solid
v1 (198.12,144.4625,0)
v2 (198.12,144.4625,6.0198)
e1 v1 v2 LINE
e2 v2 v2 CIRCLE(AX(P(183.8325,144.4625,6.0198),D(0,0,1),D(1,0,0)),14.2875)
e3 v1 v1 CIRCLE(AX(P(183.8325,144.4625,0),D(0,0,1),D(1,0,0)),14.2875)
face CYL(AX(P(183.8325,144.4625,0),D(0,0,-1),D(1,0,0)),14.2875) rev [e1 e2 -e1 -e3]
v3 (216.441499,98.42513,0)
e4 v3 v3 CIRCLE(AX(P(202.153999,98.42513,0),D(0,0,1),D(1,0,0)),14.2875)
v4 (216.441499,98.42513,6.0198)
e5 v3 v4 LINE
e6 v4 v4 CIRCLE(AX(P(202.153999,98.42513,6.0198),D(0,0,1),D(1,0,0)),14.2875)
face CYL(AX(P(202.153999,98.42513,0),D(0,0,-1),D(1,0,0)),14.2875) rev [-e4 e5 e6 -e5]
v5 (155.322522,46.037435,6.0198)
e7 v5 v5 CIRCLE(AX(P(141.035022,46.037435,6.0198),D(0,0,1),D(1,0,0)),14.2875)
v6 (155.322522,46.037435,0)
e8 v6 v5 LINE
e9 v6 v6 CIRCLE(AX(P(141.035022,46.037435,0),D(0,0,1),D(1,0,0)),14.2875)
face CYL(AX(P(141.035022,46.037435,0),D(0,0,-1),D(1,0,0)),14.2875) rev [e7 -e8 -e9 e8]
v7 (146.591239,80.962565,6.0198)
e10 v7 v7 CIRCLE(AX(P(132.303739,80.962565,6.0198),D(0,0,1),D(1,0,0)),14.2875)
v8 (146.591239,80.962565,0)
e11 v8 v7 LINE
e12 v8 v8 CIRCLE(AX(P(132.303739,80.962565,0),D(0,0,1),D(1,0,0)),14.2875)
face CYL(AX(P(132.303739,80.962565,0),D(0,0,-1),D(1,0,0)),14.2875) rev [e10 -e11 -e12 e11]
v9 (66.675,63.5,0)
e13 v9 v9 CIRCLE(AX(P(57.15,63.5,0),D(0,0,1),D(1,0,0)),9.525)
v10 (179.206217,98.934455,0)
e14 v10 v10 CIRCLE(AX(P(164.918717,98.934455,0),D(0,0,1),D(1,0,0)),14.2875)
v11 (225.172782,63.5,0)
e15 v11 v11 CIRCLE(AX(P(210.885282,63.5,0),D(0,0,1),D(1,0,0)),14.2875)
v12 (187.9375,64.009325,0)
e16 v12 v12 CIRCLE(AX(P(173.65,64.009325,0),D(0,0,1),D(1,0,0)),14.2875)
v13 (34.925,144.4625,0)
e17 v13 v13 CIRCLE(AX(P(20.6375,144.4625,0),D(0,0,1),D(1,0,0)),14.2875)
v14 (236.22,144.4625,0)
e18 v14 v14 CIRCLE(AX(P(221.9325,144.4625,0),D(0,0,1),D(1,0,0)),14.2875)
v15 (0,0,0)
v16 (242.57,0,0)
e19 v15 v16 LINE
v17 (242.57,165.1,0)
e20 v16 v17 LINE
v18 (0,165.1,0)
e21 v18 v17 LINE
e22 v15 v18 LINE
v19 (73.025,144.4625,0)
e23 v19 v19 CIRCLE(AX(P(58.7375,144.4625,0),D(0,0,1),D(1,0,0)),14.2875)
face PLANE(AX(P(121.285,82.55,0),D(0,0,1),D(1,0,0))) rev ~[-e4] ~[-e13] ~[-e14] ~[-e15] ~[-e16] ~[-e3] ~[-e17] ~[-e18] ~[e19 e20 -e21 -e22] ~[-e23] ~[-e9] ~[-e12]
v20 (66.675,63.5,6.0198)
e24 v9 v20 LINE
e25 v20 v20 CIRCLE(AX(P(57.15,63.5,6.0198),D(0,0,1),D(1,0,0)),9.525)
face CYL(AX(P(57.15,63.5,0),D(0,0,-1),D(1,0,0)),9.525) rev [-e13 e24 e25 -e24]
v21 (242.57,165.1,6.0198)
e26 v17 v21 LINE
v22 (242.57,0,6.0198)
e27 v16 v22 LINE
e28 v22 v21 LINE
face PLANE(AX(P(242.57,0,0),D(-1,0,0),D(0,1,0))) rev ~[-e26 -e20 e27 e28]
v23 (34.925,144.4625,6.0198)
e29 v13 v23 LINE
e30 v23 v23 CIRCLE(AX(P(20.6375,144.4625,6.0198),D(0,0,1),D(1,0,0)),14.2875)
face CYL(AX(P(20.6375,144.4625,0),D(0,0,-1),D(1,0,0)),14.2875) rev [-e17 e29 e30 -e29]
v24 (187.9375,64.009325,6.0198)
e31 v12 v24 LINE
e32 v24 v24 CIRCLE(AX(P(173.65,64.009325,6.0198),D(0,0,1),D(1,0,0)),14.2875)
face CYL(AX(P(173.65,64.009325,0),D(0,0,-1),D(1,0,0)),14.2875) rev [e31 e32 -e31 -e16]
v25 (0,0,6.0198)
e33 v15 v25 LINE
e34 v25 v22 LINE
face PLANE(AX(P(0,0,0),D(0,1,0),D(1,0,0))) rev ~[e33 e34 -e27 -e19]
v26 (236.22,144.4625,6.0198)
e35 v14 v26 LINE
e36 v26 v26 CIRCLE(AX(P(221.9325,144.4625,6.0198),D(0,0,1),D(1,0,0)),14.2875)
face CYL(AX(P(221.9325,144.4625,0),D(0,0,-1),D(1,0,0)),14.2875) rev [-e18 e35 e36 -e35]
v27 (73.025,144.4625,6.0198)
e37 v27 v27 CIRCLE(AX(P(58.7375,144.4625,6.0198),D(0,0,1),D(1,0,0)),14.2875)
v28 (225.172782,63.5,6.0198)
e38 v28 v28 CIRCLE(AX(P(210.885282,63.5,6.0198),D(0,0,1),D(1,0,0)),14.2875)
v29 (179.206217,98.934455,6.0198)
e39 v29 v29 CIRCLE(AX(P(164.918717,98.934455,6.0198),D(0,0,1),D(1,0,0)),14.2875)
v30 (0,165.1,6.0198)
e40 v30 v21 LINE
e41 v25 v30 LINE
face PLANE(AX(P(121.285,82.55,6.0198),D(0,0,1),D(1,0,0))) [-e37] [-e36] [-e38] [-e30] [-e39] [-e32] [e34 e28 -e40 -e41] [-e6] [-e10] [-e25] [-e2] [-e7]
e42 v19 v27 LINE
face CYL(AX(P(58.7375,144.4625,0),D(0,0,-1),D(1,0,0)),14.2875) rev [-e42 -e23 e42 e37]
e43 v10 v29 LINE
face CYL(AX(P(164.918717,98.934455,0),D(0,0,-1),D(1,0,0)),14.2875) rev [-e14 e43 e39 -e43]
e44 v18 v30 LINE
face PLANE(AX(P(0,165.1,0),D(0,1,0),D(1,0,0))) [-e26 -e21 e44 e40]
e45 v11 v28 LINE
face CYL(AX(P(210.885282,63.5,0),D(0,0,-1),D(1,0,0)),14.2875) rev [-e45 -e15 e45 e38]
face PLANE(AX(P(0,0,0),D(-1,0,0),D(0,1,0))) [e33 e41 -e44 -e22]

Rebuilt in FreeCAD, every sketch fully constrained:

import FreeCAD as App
import Part
import Sketcher
Q = App.Units.Quantity


def add_polygon(sketch, points):
    """Adds a closed chain of lines whose ends are joined by coincident constraints."""
    first, n = sketch.GeometryCount, len(points)
    for a, b in zip(points, points[1:] + points[:1]):
        sketch.addGeometry(Part.LineSegment(App.Vector(*a, 0), App.Vector(*b, 0)), False)
    for i in range(n):
        sketch.addConstraint(Sketcher.Constraint("Coincident", first + i, 2, first + (i + 1) % n, 1))

doc = App.newDocument("Part")
body = doc.addObject("PartDesign::Body", "Body")

# Sketch on XY plane
sketch1 = doc.addObject("Sketcher::SketchObject", "Sketch")
body.addObject(sketch1)
sketch1.AttachmentSupport = (doc.XY_Plane, [""])
sketch1.MapMode = "FlatFace"
add_polygon(sketch1, [(0, 165), (0, 0), (243, 0), (243, 165)])  # lines 0-3
sketch1.addGeometry(Part.Circle(App.Vector(57, 64, 0), App.Vector(0, 0, 1), 10), False)  # 4
sketch1.addGeometry(Part.Circle(App.Vector(141, 46, 0), App.Vector(0, 0, 1), 14), False)  # 5
sketch1.addGeometry(Part.Circle(App.Vector(174, 64, 0), App.Vector(0, 0, 1), 14), False)  # 6
sketch1.addGeometry(Part.Circle(App.Vector(132, 81, 0), App.Vector(0, 0, 1), 14), False)  # 7
sketch1.addGeometry(Part.Circle(App.Vector(211, 64, 0), App.Vector(0, 0, 1), 14), False)  # 8
sketch1.addGeometry(Part.Circle(App.Vector(21, 144, 0), App.Vector(0, 0, 1), 14), False)  # 9
sketch1.addGeometry(Part.Circle(App.Vector(59, 144, 0), App.Vector(0, 0, 1), 14), False)  # 10
sketch1.addGeometry(Part.Circle(App.Vector(165, 99, 0), App.Vector(0, 0, 1), 14), False)  # 11
sketch1.addGeometry(Part.Circle(App.Vector(202, 98, 0), App.Vector(0, 0, 1), 14), False)  # 12
sketch1.addGeometry(Part.Circle(App.Vector(184, 144, 0), App.Vector(0, 0, 1), 14), False)  # 13
sketch1.addGeometry(Part.Circle(App.Vector(222, 144, 0), App.Vector(0, 0, 1), 14), False)  # 14
sketch1.addConstraint(Sketcher.Constraint("Vertical", 0))
sketch1.addConstraint(Sketcher.Constraint("Horizontal", 1))
sketch1.addConstraint(Sketcher.Constraint("Vertical", 2))
sketch1.addConstraint(Sketcher.Constraint("Horizontal", 3))
sketch1.addConstraint(Sketcher.Constraint("Coincident", 0, 2, -1, 1))
sketch1.addConstraint(Sketcher.Constraint("Equal", 5, 6))
sketch1.addConstraint(Sketcher.Constraint("Equal", 6, 7))
sketch1.addConstraint(Sketcher.Constraint("Equal", 7, 8))
sketch1.addConstraint(Sketcher.Constraint("Equal", 8, 9))
sketch1.addConstraint(Sketcher.Constraint("Equal", 9, 10))
sketch1.addConstraint(Sketcher.Constraint("Equal", 10, 11))
sketch1.addConstraint(Sketcher.Constraint("Equal", 11, 12))
sketch1.addConstraint(Sketcher.Constraint("Equal", 12, 13))
sketch1.addConstraint(Sketcher.Constraint("Equal", 13, 14))
sketch1.addConstraint(Sketcher.Constraint("Horizontal", 4, 3, 8, 3))
sketch1.addConstraint(Sketcher.Constraint("Horizontal", 9, 3, 10, 3))
sketch1.addConstraint(Sketcher.Constraint("Horizontal", 10, 3, 13, 3))
sketch1.addConstraint(Sketcher.Constraint("Horizontal", 13, 3, 14, 3))
sketch1.addConstraint(Sketcher.Constraint("Diameter", 4, Q("0.75 in")))
sketch1.addConstraint(Sketcher.Constraint("Diameter", 5, Q("1.125 in")))
sketch1.addConstraint(Sketcher.Constraint("DistanceY", 0, 2, 0, 1, Q("6.5 in")))
sketch1.addConstraint(Sketcher.Constraint("DistanceY", 8, 3, 2, 2, Q("4 in")))
sketch1.addConstraint(Sketcher.Constraint("DistanceX", 1, 1, 1, 2, Q("9.55 in")))
sketch1.addConstraint(Sketcher.Constraint("DistanceX", 9, 3, 10, 3, Q("1.5 in")))
sketch1.addConstraint(Sketcher.Constraint("DistanceX", 13, 3, 14, 3, Q("1.5 in")))
sketch1.addConstraint(Sketcher.Constraint("DistanceX", -1, 1, 4, 3, Q("2.25 in")))
sketch1.addConstraint(Sketcher.Constraint("DistanceX", -1, 1, 9, 3, Q("0.8125 in")))
sketch1.addConstraint(Sketcher.Constraint("DistanceY", -1, 1, 9, 3, Q("5.6875 in")))
sketch1.addConstraint(Sketcher.Constraint("DistanceX", 14, 3, 2, 2, Q("0.8125 in")))
sketch1.addConstraint(Sketcher.Constraint("DistanceX", -1, 1, 6, 3, Q("173.65 mm")))
sketch1.addConstraint(Sketcher.Constraint("DistanceX", -1, 1, 12, 3, Q("202.153999 mm")))
sketch1.addConstraint(Sketcher.Constraint("DistanceX", -1, 1, 5, 3, Q("141.035022 mm")))
sketch1.addConstraint(Sketcher.Constraint("DistanceX", -1, 1, 7, 3, Q("132.303739 mm")))
sketch1.addConstraint(Sketcher.Constraint("DistanceX", -1, 1, 8, 3, Q("210.885282 mm")))
sketch1.addConstraint(Sketcher.Constraint("DistanceY", -1, 1, 12, 3, Q("98.42513 mm")))
sketch1.addConstraint(Sketcher.Constraint("DistanceY", 5, 3, 6, 3, Q("17.97189 mm")))
sketch1.addConstraint(Sketcher.Constraint("DistanceY", 5, 3, 7, 3, Q("34.92513 mm")))
sketch1.addConstraint(Sketcher.Constraint("DistanceY", 6, 3, 11, 3, Q("34.92513 mm")))
sketch1.addConstraint(Sketcher.Constraint("DistanceY", -1, 1, 5, 3, Q("46.037435 mm")))
sketch1.addConstraint(Sketcher.Constraint("DistanceX", -1, 1, 11, 3, Q("164.918717 mm")))
pad1 = doc.addObject("PartDesign::Pad", "Pad")
body.addObject(pad1)
pad1.Profile = sketch1
pad1.Length = Q("0.237 in")

doc.recompute()
